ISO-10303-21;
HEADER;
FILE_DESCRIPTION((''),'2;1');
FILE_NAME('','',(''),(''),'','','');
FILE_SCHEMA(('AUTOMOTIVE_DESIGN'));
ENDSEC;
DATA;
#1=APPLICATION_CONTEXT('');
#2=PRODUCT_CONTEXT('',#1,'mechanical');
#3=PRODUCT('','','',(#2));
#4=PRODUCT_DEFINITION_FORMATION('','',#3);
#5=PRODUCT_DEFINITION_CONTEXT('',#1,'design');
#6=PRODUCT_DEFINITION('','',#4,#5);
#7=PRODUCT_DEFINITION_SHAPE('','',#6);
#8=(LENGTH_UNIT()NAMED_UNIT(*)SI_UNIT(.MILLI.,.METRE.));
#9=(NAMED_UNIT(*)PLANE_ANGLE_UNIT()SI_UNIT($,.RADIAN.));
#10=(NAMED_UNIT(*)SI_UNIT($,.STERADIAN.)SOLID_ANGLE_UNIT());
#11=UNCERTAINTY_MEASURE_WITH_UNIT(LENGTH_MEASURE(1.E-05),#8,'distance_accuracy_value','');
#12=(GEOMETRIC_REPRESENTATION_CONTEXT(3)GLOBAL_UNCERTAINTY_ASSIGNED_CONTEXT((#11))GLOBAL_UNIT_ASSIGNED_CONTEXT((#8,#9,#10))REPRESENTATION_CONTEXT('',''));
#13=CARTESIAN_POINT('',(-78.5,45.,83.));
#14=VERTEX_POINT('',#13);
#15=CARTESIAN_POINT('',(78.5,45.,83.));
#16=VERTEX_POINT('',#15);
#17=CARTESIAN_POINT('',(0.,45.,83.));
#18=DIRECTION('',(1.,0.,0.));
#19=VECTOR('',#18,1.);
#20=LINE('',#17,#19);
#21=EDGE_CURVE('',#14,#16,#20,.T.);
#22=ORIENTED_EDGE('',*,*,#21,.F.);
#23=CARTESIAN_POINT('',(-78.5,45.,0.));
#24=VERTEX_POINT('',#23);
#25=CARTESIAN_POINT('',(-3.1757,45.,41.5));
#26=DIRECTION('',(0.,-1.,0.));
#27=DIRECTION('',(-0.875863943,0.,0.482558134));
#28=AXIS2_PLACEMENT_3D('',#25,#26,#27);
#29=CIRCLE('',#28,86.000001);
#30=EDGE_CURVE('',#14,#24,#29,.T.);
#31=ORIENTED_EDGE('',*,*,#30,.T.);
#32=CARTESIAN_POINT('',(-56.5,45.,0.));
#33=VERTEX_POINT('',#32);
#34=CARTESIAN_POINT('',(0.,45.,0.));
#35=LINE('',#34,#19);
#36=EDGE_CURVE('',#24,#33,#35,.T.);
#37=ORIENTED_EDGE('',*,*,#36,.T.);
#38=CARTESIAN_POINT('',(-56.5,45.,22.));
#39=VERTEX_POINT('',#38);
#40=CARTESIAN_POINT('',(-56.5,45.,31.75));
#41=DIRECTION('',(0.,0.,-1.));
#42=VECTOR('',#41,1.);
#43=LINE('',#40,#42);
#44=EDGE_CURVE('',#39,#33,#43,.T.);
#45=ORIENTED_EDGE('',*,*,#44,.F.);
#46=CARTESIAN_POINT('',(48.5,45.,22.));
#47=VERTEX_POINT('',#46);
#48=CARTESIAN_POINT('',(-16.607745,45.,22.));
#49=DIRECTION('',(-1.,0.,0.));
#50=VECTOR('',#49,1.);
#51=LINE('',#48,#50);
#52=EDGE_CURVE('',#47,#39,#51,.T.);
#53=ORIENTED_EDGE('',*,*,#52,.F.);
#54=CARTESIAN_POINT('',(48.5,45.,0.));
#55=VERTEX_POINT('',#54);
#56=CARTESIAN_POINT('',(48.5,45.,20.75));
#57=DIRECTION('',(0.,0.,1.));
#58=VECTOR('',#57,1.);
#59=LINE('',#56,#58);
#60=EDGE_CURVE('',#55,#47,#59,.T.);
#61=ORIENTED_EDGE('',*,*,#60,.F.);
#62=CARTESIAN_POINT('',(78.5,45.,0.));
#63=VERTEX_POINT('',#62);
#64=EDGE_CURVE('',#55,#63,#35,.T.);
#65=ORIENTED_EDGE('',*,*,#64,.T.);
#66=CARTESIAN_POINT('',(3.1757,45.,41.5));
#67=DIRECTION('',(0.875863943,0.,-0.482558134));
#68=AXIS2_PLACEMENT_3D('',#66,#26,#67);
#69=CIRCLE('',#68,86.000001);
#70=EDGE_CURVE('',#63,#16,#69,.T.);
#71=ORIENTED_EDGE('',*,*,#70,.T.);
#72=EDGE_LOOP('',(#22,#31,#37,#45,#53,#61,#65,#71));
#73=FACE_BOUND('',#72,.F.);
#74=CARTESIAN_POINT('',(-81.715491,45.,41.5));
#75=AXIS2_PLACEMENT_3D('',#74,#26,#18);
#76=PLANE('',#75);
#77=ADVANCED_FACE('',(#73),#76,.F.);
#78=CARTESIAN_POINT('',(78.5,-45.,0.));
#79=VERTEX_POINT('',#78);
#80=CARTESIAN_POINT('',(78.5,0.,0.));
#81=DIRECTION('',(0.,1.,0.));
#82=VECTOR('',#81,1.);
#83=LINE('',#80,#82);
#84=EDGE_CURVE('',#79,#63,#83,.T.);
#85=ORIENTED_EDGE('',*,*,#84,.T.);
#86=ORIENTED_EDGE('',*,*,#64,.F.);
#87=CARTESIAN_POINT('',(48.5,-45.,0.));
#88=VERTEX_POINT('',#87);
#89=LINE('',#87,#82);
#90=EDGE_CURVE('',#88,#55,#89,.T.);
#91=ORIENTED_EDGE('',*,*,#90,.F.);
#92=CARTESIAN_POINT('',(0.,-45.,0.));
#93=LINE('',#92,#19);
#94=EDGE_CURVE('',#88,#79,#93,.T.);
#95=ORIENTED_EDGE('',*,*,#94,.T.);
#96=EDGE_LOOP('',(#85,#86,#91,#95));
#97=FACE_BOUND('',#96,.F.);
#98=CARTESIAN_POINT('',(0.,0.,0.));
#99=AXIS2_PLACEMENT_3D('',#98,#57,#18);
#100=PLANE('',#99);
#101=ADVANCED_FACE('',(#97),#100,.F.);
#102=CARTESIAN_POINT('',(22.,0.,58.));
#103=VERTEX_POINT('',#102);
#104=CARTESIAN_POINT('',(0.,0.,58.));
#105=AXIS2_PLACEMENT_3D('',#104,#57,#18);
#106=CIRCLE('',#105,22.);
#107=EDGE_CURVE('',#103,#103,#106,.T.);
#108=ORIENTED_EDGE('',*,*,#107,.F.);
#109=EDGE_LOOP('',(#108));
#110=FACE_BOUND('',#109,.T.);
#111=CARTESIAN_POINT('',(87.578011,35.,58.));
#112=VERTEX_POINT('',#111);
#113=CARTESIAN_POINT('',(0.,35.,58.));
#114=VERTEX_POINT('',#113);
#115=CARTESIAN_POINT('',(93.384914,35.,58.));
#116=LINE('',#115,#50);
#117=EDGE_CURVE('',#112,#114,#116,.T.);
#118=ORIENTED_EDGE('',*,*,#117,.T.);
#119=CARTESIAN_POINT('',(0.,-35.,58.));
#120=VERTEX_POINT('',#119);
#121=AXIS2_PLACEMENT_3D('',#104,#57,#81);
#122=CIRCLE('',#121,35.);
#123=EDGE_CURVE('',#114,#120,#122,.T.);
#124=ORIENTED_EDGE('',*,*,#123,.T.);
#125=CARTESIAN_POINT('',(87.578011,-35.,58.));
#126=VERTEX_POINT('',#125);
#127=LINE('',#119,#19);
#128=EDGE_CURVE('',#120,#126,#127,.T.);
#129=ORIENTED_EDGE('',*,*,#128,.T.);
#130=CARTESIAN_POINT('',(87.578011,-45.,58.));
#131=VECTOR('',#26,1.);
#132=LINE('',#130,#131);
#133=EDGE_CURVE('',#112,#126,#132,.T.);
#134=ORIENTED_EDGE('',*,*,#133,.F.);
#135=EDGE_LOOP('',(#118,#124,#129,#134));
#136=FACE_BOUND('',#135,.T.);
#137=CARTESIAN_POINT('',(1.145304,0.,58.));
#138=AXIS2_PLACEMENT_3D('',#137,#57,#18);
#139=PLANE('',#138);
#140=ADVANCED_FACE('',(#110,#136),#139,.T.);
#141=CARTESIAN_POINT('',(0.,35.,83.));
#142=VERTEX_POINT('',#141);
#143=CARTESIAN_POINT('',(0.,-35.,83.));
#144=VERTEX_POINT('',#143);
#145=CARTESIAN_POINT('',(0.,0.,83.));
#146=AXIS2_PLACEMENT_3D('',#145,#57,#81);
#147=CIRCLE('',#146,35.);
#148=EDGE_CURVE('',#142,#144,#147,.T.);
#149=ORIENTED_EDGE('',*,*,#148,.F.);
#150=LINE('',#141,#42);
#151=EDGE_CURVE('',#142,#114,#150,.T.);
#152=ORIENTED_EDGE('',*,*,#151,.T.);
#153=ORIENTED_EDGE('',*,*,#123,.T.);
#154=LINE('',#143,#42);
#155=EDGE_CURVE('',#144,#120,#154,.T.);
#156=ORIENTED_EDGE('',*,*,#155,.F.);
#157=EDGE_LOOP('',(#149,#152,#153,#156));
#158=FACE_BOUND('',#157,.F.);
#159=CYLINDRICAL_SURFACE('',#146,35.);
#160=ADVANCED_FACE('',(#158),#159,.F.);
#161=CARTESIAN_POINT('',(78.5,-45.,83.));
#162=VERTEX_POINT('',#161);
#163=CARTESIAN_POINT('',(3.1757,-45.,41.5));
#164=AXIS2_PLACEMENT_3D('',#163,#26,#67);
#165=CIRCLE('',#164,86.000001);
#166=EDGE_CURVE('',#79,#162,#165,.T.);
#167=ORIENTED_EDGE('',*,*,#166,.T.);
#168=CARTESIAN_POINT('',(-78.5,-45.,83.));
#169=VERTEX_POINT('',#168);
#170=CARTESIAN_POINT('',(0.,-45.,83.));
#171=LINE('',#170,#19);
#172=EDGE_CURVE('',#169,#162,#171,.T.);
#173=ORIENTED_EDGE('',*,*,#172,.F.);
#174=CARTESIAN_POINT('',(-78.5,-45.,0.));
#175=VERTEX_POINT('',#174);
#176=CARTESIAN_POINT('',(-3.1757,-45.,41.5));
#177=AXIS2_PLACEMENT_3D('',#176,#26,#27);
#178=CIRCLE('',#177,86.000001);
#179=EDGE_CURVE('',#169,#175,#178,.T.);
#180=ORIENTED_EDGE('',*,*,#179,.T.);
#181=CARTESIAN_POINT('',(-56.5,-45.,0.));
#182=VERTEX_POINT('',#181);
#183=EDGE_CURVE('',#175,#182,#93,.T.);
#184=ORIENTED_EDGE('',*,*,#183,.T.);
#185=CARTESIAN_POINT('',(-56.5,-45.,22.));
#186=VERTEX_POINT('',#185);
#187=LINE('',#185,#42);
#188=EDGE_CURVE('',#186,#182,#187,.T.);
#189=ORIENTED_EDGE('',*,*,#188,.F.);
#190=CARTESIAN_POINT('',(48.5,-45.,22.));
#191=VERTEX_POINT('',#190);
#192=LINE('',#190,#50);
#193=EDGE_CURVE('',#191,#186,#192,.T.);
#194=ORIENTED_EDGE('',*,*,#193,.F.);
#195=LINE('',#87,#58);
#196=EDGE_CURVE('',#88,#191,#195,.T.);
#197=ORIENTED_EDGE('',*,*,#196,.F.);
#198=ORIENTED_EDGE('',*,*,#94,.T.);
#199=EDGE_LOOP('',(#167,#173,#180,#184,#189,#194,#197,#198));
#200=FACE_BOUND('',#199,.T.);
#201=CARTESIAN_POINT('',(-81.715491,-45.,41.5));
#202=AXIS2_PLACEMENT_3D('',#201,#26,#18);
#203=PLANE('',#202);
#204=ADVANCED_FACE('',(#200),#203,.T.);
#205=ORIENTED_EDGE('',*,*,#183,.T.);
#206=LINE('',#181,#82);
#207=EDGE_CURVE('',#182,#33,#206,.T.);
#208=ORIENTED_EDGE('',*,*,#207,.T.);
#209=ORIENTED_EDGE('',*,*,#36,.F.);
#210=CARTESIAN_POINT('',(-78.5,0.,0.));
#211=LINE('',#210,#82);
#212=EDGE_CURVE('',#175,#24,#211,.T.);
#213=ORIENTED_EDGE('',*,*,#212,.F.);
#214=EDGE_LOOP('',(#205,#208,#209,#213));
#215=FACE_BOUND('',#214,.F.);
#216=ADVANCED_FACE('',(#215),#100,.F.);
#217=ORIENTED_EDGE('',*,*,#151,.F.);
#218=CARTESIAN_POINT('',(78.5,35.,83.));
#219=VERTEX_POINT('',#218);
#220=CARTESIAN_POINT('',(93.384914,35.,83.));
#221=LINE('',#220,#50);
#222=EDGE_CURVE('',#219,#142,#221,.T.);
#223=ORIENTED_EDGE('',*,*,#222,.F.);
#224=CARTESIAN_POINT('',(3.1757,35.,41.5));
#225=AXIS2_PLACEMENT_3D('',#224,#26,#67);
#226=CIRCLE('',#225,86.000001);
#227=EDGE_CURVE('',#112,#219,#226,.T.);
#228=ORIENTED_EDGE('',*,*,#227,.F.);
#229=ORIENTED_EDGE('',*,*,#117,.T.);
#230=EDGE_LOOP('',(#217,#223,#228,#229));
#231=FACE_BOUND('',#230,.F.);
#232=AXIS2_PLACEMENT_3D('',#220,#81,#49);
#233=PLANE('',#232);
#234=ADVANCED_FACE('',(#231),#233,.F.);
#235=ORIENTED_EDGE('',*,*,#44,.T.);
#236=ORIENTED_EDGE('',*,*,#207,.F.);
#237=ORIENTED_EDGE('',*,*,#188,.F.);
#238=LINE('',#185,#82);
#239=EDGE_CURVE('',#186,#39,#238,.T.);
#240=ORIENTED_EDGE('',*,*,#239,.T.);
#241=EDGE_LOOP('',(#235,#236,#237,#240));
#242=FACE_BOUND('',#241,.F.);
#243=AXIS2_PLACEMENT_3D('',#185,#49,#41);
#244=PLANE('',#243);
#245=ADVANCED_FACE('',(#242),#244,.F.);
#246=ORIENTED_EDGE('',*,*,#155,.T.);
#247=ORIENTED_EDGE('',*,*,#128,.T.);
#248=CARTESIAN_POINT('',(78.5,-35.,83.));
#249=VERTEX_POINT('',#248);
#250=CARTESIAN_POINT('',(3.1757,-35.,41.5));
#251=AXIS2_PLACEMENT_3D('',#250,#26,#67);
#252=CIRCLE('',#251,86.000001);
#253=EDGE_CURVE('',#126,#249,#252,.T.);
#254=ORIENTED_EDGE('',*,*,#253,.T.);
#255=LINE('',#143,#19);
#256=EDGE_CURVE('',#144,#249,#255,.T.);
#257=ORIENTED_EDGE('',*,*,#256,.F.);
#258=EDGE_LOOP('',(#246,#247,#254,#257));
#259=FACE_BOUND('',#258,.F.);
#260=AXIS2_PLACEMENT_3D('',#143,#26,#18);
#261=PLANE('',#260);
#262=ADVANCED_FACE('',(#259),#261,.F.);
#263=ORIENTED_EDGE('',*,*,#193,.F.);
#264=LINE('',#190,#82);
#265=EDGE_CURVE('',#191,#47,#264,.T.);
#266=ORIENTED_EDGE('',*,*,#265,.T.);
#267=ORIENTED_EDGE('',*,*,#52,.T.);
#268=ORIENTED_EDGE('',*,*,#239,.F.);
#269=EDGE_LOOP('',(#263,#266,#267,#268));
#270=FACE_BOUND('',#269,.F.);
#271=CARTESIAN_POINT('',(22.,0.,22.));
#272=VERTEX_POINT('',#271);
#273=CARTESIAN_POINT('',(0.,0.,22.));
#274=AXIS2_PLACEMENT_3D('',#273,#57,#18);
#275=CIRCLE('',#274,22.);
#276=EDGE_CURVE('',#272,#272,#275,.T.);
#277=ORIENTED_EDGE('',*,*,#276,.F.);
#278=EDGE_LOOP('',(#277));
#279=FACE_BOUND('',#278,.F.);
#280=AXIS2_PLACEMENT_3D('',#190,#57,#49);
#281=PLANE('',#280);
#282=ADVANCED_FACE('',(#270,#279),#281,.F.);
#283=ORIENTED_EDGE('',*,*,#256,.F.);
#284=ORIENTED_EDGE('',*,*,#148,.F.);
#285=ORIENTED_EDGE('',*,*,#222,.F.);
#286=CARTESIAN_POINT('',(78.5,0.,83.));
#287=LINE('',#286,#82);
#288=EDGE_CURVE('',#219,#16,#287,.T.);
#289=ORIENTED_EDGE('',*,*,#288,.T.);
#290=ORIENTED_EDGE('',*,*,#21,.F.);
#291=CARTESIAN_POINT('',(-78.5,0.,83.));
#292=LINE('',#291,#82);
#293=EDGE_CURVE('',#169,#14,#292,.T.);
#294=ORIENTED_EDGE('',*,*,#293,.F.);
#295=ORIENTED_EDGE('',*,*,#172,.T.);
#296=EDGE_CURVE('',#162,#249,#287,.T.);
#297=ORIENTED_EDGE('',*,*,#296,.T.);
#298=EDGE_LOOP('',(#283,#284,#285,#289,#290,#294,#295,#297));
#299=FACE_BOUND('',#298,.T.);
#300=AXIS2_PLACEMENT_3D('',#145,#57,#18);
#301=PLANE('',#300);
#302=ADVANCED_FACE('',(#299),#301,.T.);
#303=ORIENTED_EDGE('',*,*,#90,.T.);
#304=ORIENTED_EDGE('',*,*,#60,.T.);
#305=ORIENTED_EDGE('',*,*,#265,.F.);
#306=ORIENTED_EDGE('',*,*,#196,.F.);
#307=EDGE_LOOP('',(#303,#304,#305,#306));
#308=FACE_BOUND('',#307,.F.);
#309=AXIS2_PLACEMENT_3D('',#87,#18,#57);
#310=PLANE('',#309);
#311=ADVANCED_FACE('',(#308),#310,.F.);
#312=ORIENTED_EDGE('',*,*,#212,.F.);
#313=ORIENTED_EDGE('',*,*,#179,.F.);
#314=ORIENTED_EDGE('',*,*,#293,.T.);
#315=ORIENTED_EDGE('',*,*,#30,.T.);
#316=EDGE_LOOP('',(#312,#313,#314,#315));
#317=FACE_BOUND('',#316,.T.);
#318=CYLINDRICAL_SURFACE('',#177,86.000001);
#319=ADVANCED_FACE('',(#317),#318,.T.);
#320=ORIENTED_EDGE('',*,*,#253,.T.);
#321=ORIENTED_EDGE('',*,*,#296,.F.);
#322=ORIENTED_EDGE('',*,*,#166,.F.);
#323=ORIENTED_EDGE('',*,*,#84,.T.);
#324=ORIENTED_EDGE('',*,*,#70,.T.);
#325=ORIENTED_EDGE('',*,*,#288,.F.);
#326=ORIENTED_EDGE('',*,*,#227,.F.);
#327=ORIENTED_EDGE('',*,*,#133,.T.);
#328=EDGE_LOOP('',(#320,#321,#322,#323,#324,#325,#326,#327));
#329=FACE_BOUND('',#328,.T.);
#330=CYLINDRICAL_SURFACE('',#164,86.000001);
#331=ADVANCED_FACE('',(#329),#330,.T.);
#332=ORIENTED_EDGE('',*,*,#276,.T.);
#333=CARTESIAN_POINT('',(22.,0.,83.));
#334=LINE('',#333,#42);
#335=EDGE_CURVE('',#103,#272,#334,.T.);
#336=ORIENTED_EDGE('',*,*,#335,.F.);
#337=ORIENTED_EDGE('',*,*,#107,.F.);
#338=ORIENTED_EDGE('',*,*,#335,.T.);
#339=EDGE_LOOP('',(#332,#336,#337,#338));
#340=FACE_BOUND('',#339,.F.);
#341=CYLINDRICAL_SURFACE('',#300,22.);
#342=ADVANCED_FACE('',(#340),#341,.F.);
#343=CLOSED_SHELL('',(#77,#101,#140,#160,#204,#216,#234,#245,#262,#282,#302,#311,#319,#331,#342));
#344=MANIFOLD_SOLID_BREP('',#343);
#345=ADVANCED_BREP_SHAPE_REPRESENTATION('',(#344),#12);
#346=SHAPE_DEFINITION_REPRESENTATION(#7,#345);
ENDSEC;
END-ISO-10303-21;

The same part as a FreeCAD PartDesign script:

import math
import FreeCAD as App
import Part
import Sketcher

doc = App.newDocument("Part")
body = doc.addObject("PartDesign::Body", "Body")

# Sketch on XY plane
sketch1 = body.newObject("Sketcher::SketchObject", "Sketch")
sketch1.AttachmentSupport = (doc.getObject("XY_Plane"), [""])
sketch1.MapMode = "FlatFace"
sketch1.addGeometry([
    Part.LineSegment(App.Vector(-78.5, 45, 0), App.Vector(-78.5, -45, 0)),
    Part.LineSegment(App.Vector(-78.5, -45, 0), App.Vector(78.5, -45, 0)),
    Part.LineSegment(App.Vector(78.5, -45, 0), App.Vector(78.5, 45, 0)),
    Part.LineSegment(App.Vector(78.5, 45, 0), App.Vector(-78.5, 45, 0)),
], False)
sketch1.addConstraint([
    Sketcher.Constraint("Coincident", 0, 2, 1, 1),
    Sketcher.Constraint("Coincident", 1, 2, 2, 1),
    Sketcher.Constraint("Coincident", 2, 2, 3, 1),
    Sketcher.Constraint("Coincident", 3, 2, 0, 1),
    Sketcher.Constraint("Vertical", 0),
    Sketcher.Constraint("Horizontal", 1),
    Sketcher.Constraint("Vertical", 2),
    Sketcher.Constraint("Horizontal", 3),
    Sketcher.Constraint("Symmetric", 0, 2, 2, 2, -1, 1),
    Sketcher.Constraint("DistanceX", 1, 1, 1, 2, 157.0),
    Sketcher.Constraint("DistanceY", 0, 2, 0, 1, 90.0),
])
pad1 = body.newObject("PartDesign::Pad", "Pad")
pad1.Profile = sketch1
pad1.Length = 83

# Sketch on XZ plane
sketch2 = body.newObject("Sketcher::SketchObject", "Sketch001")
sketch2.AttachmentSupport = (doc.getObject("XZ_Plane"), [""])
sketch2.MapMode = "FlatFace"
sketch2.AttachmentOffset = App.Placement(App.Vector(0, 0, 45), App.Rotation())
sketch2.addGeometry([
    Part.LineSegment(App.Vector(-78.5, 0, 0), App.Vector(-78.5, 83, 0)),
    Part.ArcOfCircle(Part.Circle(App.Vector(-3.1757, 41.5, 0), App.Vector(0, 0, 1), 86.000001), math.radians(151.147388), math.radians(208.852612)),
    Part.ArcOfCircle(Part.Circle(App.Vector(3.1757, 41.5, 0), App.Vector(0, 0, 1), 86.000001), math.radians(-28.852612), math.radians(28.852612)),
    Part.LineSegment(App.Vector(78.5, 83, 0), App.Vector(78.5, 0, 0)),
], False)
sketch2.addConstraint([
    Sketcher.Constraint("Coincident", 0, 1, 1, 2),
    Sketcher.Constraint("Coincident", 1, 1, 0, 2),
    Sketcher.Constraint("Coincident", 2, 1, 3, 2),
    Sketcher.Constraint("Coincident", 3, 1, 2, 2),
    Sketcher.Constraint("Vertical", 0),
    Sketcher.Constraint("Vertical", 3),
    Sketcher.Constraint("Equal", 1, 2),
    Sketcher.Constraint("Symmetric", 0, 1, 2, 1, -1, 1),
    Sketcher.Constraint("Symmetric", 1, 3, 2, 3, -2),
    Sketcher.Constraint("Radius", 1, 86.000001),
    Sketcher.Constraint("DistanceY", 0, 1, 0, 2, 83.0),
    Sketcher.Constraint("DistanceX", 0, 1, 2, 1, 157.0),
])
pad2 = body.newObject("PartDesign::Pad", "Pad001")
pad2.Profile = sketch2
pad2.Type = "UpToLast"
pad2.Reversed = True

# Sketch on XZ plane
sketch3 = body.newObject("Sketcher::SketchObject", "Sketch002")
sketch3.AttachmentSupport = (doc.getObject("XZ_Plane"), [""])
sketch3.MapMode = "FlatFace"
sketch3.AttachmentOffset = App.Placement(App.Vector(0, 0, 45), App.Rotation())
sketch3.addGeometry([
    Part.LineSegment(App.Vector(-56.5, 0, 0), App.Vector(48.5, 0, 0)),
    Part.LineSegment(App.Vector(48.5, 0, 0), App.Vector(48.5, 22, 0)),
    Part.LineSegment(App.Vector(48.5, 22, 0), App.Vector(-56.5, 22, 0)),
    Part.LineSegment(App.Vector(-56.5, 22, 0), App.Vector(-56.5, 0, 0)),
], False)
sketch3.addConstraint([
    Sketcher.Constraint("Coincident", 0, 2, 1, 1),
    Sketcher.Constraint("Coincident", 1, 2, 2, 1),
    Sketcher.Constraint("Coincident", 2, 2, 3, 1),
    Sketcher.Constraint("Coincident", 3, 2, 0, 1),
    Sketcher.Constraint("Horizontal", 0),
    Sketcher.Constraint("Vertical", 1),
    Sketcher.Constraint("Horizontal", 2),
    Sketcher.Constraint("Vertical", 3),
    Sketcher.Constraint("PointOnObject", 0, 2, -1),
    Sketcher.Constraint("DistanceX", 0, 1, 0, 2, 105.0),
    Sketcher.Constraint("DistanceY", 1, 1, 1, 2, 22.0),
    Sketcher.Constraint("DistanceX", -1, 1, 0, 2, 48.5),
])
pocket1 = body.newObject("PartDesign::Pocket", "Pocket")
pocket1.Profile = sketch3
pocket1.Length = 557

# Sketch on XY plane
sketch4 = body.newObject("Sketcher::SketchObject", "Sketch003")
sketch4.AttachmentSupport = (doc.getObject("XY_Plane"), [""])
sketch4.MapMode = "FlatFace"
sketch4.AttachmentOffset = App.Placement(App.Vector(0, 0, 83), App.Rotation())
sketch4.addGeometry([
    Part.ArcOfCircle(Part.Circle(App.Vector(0, 0, 0), App.Vector(0, 0, 1), 35), math.radians(90), math.radians(270)),  # 0
    Part.LineSegment(App.Vector(0, -35, 0), App.Vector(92.262775, -35, 0)),  # 1
    Part.LineSegment(App.Vector(92.262775, -35, 0), App.Vector(93.384914, -35.542417, 0)),  # 2
    Part.LineSegment(App.Vector(93.384914, -35.542417, 0), App.Vector(93.384914, 35, 0)),  # 3
    Part.LineSegment(App.Vector(93.384914, 35, 0), App.Vector(0, 35, 0)),  # 4
    Part.Circle(App.Vector(0, 0, 0), App.Vector(0, 0, 1), 22),  # 5
], False)
sketch4.addConstraint([
    Sketcher.Constraint("Tangent", 0, 2, 1, 1),
    Sketcher.Constraint("Coincident", 1, 2, 2, 1),
    Sketcher.Constraint("Coincident", 2, 2, 3, 1),
    Sketcher.Constraint("Coincident", 3, 2, 4, 1),
    Sketcher.Constraint("Tangent", 4, 2, 0, 1),
    Sketcher.Constraint("Horizontal", 1),
    Sketcher.Constraint("Vertical", 3),
    Sketcher.Constraint("Horizontal", 4),
    Sketcher.Constraint("Coincident", 0, 3, -1, 1),
    Sketcher.Constraint("Coincident", 5, 3, -1, 1),
    Sketcher.Constraint("Diameter", 5, 44.0),
    Sketcher.Constraint("Radius", 0, 35.0),
    Sketcher.Constraint("Distance", 2, 1.24636),
    Sketcher.Constraint("DistanceX", 1, 1, 1, 2, 92.262775),
    Sketcher.Constraint("DistanceX", 4, 2, 4, 1, 93.384914),
])
pocket2 = body.newObject("PartDesign::Pocket", "Pocket001")
pocket2.Profile = sketch4
pocket2.Length = 25

# Sketch on XY plane
sketch5 = body.newObject("Sketcher::SketchObject", "Sketch004")
sketch5.AttachmentSupport = (doc.getObject("XY_Plane"), [""])
sketch5.MapMode = "FlatFace"
sketch5.AttachmentOffset = App.Placement(App.Vector(0, 0, 83), App.Rotation())
sketch5.addGeometry(Part.Circle(App.Vector(0, 0, 0), App.Vector(0, 0, 1), 22), False)
sketch5.addConstraint([
    Sketcher.Constraint("Coincident", 0, 3, -1, 1),
    Sketcher.Constraint("Diameter", 0, 44.0),
])
pocket3 = body.newObject("PartDesign::Pocket", "Pocket002")
pocket3.Profile = sketch5
pocket3.Length = 185

doc.recompute()
